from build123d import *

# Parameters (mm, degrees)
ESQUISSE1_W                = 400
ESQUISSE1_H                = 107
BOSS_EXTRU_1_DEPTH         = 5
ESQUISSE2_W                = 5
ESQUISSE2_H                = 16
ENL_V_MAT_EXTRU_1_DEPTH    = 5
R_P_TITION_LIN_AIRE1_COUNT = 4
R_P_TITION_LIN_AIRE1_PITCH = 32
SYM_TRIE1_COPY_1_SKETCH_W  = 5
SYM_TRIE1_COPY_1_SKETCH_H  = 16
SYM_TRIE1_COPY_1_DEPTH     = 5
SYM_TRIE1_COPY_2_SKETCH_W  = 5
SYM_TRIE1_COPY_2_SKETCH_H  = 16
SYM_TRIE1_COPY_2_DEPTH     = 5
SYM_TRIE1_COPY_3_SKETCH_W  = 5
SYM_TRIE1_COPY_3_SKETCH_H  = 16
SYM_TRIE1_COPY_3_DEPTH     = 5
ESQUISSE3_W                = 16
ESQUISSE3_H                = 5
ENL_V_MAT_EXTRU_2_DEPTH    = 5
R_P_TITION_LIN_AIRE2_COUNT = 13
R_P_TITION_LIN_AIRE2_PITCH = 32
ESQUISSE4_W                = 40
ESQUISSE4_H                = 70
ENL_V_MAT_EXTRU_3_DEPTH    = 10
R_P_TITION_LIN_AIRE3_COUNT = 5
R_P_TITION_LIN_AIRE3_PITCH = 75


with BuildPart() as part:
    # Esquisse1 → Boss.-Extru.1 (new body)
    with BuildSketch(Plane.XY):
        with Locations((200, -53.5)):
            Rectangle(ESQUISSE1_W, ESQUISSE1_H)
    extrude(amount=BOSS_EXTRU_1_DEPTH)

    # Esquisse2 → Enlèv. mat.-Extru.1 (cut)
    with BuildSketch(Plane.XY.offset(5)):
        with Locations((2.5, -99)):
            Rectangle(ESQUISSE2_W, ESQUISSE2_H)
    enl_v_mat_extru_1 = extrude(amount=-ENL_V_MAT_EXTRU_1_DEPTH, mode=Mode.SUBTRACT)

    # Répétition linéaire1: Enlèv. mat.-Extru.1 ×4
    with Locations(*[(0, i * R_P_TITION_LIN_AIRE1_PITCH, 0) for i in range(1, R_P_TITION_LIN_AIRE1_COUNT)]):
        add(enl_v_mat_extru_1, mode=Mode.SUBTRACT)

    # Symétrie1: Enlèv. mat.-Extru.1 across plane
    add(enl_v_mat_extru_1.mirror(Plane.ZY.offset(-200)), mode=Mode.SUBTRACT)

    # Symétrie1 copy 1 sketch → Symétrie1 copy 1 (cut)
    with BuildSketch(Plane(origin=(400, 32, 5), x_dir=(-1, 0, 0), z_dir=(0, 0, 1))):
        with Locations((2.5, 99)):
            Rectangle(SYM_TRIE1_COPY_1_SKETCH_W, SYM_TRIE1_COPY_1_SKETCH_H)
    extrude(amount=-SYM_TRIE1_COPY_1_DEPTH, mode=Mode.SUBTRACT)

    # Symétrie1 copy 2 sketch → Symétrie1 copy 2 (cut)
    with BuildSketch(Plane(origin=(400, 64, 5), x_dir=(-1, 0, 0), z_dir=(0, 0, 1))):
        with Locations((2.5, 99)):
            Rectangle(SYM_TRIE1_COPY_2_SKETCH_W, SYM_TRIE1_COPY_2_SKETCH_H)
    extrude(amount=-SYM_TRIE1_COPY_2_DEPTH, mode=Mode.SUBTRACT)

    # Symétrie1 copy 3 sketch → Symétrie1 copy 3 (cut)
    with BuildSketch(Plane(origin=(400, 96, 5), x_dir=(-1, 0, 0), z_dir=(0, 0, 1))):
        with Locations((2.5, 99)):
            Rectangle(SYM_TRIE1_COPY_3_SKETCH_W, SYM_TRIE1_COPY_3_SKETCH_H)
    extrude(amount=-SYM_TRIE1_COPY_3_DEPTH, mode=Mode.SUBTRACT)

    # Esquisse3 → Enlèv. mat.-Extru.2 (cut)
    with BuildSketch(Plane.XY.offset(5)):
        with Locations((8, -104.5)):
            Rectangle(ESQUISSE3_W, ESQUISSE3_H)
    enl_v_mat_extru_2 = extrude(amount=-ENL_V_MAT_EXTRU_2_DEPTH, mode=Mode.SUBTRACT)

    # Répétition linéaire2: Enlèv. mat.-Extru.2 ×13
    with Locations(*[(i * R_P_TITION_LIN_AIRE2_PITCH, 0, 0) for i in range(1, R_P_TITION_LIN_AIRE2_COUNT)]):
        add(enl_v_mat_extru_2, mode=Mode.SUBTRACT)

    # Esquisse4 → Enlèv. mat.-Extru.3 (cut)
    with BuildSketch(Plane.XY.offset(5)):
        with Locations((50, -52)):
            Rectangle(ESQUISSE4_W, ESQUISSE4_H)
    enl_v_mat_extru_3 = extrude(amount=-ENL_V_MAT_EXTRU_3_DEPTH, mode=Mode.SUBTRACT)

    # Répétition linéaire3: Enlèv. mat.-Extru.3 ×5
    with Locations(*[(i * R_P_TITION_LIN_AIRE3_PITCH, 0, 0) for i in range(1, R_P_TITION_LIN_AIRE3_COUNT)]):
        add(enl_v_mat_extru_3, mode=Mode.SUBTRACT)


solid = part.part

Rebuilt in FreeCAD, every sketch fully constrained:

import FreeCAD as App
import Part
import Sketcher
from FreeCAD import Vector


def add_polygon(sketch, points):
    """Adds a closed chain of lines whose ends are joined by coincident constraints."""
    first, n = sketch.GeometryCount, len(points)
    for a, b in zip(points, points[1:] + points[:1]):
        sketch.addGeometry(Part.LineSegment(App.Vector(*a, 0), App.Vector(*b, 0)), False)
    for i in range(n):
        sketch.addConstraint(Sketcher.Constraint("Coincident", first + i, 2, first + (i + 1) % n, 1))

doc = App.newDocument("Part")
body = doc.addObject("PartDesign::Body", "Body")

# Sketch on XY plane
sketch1 = body.newObject("Sketcher::SketchObject", "Sketch")
sketch1.AttachmentSupport = (doc.getObject("XY_Plane"), [""])
sketch1.MapMode = "FlatFace"
add_polygon(sketch1, [(0, 0), (0, -107), (400, -107), (400, 0)])  # lines 0-3
sketch1.addConstraint([
    Sketcher.Constraint("Vertical", 0),
    Sketcher.Constraint("Horizontal", 1),
    Sketcher.Constraint("Vertical", 2),
    Sketcher.Constraint("Horizontal", 3),
    Sketcher.Constraint("Coincident", 3, 2, -1, 1),
    Sketcher.Constraint("DistanceX", 1, 1, 1, 2, 400.0),
    Sketcher.Constraint("DistanceY", 0, 2, 0, 1, 107.0),
])
pad1 = body.newObject("PartDesign::Pad", "Pad")
pad1.Profile = sketch1
pad1.Length = 5

# Sketch on XY plane
sketch2 = body.newObject("Sketcher::SketchObject", "Sketch001")
sketch2.AttachmentSupport = (doc.getObject("XY_Plane"), [""])
sketch2.MapMode = "FlatFace"
sketch2.AttachmentOffset = App.Placement(Vector(0, 0, 5), App.Rotation())
add_polygon(sketch2, [(0, -91), (0, -107), (5, -107), (5, -91)])  # lines 0-3
sketch2.addConstraint([
    Sketcher.Constraint("Vertical", 0),
    Sketcher.Constraint("Horizontal", 1),
    Sketcher.Constraint("Vertical", 2),
    Sketcher.Constraint("Horizontal", 3),
    Sketcher.Constraint("PointOnObject", 0, 2, -2),
    Sketcher.Constraint("DistanceX", 1, 1, 1, 2, 5.0),
    Sketcher.Constraint("DistanceY", 0, 2, 0, 1, 16.0),
    Sketcher.Constraint("DistanceY", 0, 2, -1, 1, 107.0),
])
pocket1 = body.newObject("PartDesign::Pocket", "Pocket")
pocket1.Profile = sketch2
pocket1.Length = 5
doc.recompute()

linearpattern = body.newObject("PartDesign::LinearPattern", "LinearPattern")
linearpattern.Originals = [pocket1]
linearpattern.Direction = (doc.getObject("Y_Axis"), [""])
linearpattern.Mode = "offset"
linearpattern.Offset = 32
linearpattern.Occurrences = 4
body.Tip = linearpattern
doc.recompute()

datumplane = body.newObject("PartDesign::Plane", "DatumPlane")
datumplane.AttachmentSupport = (doc.getObject("YZ_Plane"), [""])
datumplane.MapMode = "FlatFace"
datumplane.AttachmentOffset = App.Placement(Vector(0, 0, 200), App.Rotation())
mirrored = body.newObject("PartDesign::Mirrored", "Mirrored")
mirrored.Originals = [pocket1]
mirrored.MirrorPlane = (datumplane, [""])
body.Tip = mirrored

# Sketch on XY plane
sketch3 = body.newObject("Sketcher::SketchObject", "Sketch002")
sketch3.AttachmentSupport = (doc.getObject("XY_Plane"), [""])
sketch3.MapMode = "FlatFace"
sketch3.AttachmentOffset = App.Placement(Vector(0, 0, 5), App.Rotation())
add_polygon(sketch3, [(400, -75), (400, -59), (395, -59), (395, -75)])  # lines 0-3
sketch3.addConstraint([
    Sketcher.Constraint("Vertical", 0),
    Sketcher.Constraint("Horizontal", 1),
    Sketcher.Constraint("Vertical", 2),
    Sketcher.Constraint("Horizontal", 3),
    Sketcher.Constraint("DistanceX", 1, 2, 1, 1, 5.0),
    Sketcher.Constraint("DistanceY", 0, 1, 0, 2, 16.0),
    Sketcher.Constraint("DistanceX", -1, 1, 0, 2, 400.0),
    Sketcher.Constraint("DistanceY", 0, 2, -1, 1, 59.0),
])
pocket2 = body.newObject("PartDesign::Pocket", "Pocket001")
pocket2.Profile = sketch3
pocket2.Length = 5

# Sketch on XY plane
sketch4 = body.newObject("Sketcher::SketchObject", "Sketch003")
sketch4.AttachmentSupport = (doc.getObject("XY_Plane"), [""])
sketch4.MapMode = "FlatFace"
sketch4.AttachmentOffset = App.Placement(Vector(0, 0, 5), App.Rotation())
add_polygon(sketch4, [(400, -43), (400, -27), (395, -27), (395, -43)])  # lines 0-3
sketch4.addConstraint([
    Sketcher.Constraint("Vertical", 0),
    Sketcher.Constraint("Horizontal", 1),
    Sketcher.Constraint("Vertical", 2),
    Sketcher.Constraint("Horizontal", 3),
    Sketcher.Constraint("DistanceX", 1, 2, 1, 1, 5.0),
    Sketcher.Constraint("DistanceY", 0, 1, 0, 2, 16.0),
    Sketcher.Constraint("DistanceX", -1, 1, 0, 2, 400.0),
    Sketcher.Constraint("DistanceY", 0, 2, -1, 1, 27.0),
])
pocket3 = body.newObject("PartDesign::Pocket", "Pocket002")
pocket3.Profile = sketch4
pocket3.Length = 5

# Sketch on XY plane
sketch5 = body.newObject("Sketcher::SketchObject", "Sketch004")
sketch5.AttachmentSupport = (doc.getObject("XY_Plane"), [""])
sketch5.MapMode = "FlatFace"
sketch5.AttachmentOffset = App.Placement(Vector(0, 0, 5), App.Rotation())
add_polygon(sketch5, [(400, -11), (400, 5), (395, 5), (395, -11)])  # lines 0-3
sketch5.addConstraint([
    Sketcher.Constraint("Vertical", 0),
    Sketcher.Constraint("Horizontal", 1),
    Sketcher.Constraint("Vertical", 2),
    Sketcher.Constraint("Horizontal", 3),
    Sketcher.Constraint("DistanceX", 1, 2, 1, 1, 5.0),
    Sketcher.Constraint("DistanceY", 0, 1, 0, 2, 16.0),
    Sketcher.Constraint("DistanceX", -1, 1, 0, 2, 400.0),
    Sketcher.Constraint("DistanceY", -1, 1, 0, 2, 5.0),
])
pocket4 = body.newObject("PartDesign::Pocket", "Pocket003")
pocket4.Profile = sketch5
pocket4.Length = 5

# Sketch on XY plane
sketch6 = body.newObject("Sketcher::SketchObject", "Sketch005")
sketch6.AttachmentSupport = (doc.getObject("XY_Plane"), [""])
sketch6.MapMode = "FlatFace"
sketch6.AttachmentOffset = App.Placement(Vector(0, 0, 5), App.Rotation())
add_polygon(sketch6, [(0, -102), (0, -107), (16, -107), (16, -102)])  # lines 0-3
sketch6.addConstraint([
    Sketcher.Constraint("Vertical", 0),
    Sketcher.Constraint("Horizontal", 1),
    Sketcher.Constraint("Vertical", 2),
    Sketcher.Constraint("Horizontal", 3),
    Sketcher.Constraint("PointOnObject", 0, 2, -2),
    Sketcher.Constraint("DistanceX", 1, 1, 1, 2, 16.0),
    Sketcher.Constraint("DistanceY", 0, 2, 0, 1, 5.0),
    Sketcher.Constraint("DistanceY", 0, 2, -1, 1, 107.0),
])
pocket5 = body.newObject("PartDesign::Pocket", "Pocket004")
pocket5.Profile = sketch6
pocket5.Length = 5
doc.recompute()

linearpattern2 = body.newObject("PartDesign::LinearPattern", "LinearPattern001")
linearpattern2.Originals = [pocket5]
linearpattern2.Direction = (doc.getObject("X_Axis"), [""])
linearpattern2.Mode = "offset"
linearpattern2.Offset = 32
linearpattern2.Occurrences = 13
body.Tip = linearpattern2

# Sketch on XY plane
sketch7 = body.newObject("Sketcher::SketchObject", "Sketch006")
sketch7.AttachmentSupport = (doc.getObject("XY_Plane"), [""])
sketch7.MapMode = "FlatFace"
sketch7.AttachmentOffset = App.Placement(Vector(0, 0, 5), App.Rotation())
add_polygon(sketch7, [(30, -17), (30, -87), (70, -87), (70, -17)])  # lines 0-3
sketch7.addConstraint([
    Sketcher.Constraint("Vertical", 0),
    Sketcher.Constraint("Horizontal", 1),
    Sketcher.Constraint("Vertical", 2),
    Sketcher.Constraint("Horizontal", 3),
    Sketcher.Constraint("DistanceX", 1, 1, 1, 2, 40.0),
    Sketcher.Constraint("DistanceY", 0, 2, 0, 1, 70.0),
    Sketcher.Constraint("DistanceX", -1, 1, 0, 2, 30.0),
    Sketcher.Constraint("DistanceY", 0, 2, -1, 1, 87.0),
])
pocket6 = body.newObject("PartDesign::Pocket", "Pocket005")
pocket6.Profile = sketch7
pocket6.Length = 10
doc.recompute()

linearpattern3 = body.newObject("PartDesign::LinearPattern", "LinearPattern002")
linearpattern3.Originals = [pocket6]
linearpattern3.Direction = (doc.getObject("X_Axis"), [""])
linearpattern3.Mode = "offset"
linearpattern3.Offset = 75
linearpattern3.Occurrences = 5
body.Tip = linearpattern3

doc.recompute()
